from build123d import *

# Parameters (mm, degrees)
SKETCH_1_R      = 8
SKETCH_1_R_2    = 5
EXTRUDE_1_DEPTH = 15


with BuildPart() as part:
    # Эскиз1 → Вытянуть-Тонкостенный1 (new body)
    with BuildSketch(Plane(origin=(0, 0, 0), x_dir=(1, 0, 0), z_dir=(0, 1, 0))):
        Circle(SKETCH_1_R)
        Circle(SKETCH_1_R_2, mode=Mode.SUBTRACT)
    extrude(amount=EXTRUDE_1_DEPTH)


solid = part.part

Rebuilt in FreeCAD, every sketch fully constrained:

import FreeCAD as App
import Part
import Sketcher

V = App.Vector
Q = App.Units.Quantity

doc = App.newDocument("Part")
body = doc.addObject("PartDesign::Body", "Body")

# Sketch on XZ plane
sketch1 = body.newObject("Sketcher::SketchObject", "Sketch")
sketch1.AttachmentSupport = (doc.getObject("XZ_Plane"), [""])
sketch1.MapMode = "FlatFace"
sketch1.addGeometry([
    Part.Circle(V(0, 0, 0), V(0, 0, 1), 8),
    Part.Circle(V(0, 0, 0), V(0, 0, 1), 5),
], False)
sketch1.addConstraint([
    Sketcher.Constraint("Coincident", 0, 3, -1, 1),
    Sketcher.Constraint("Coincident", 1, 3, -1, 1),
    Sketcher.Constraint("Diameter", 0, Q("16 mm")),
    Sketcher.Constraint("Diameter", 1, Q("10 mm")),
])
pad1 = body.newObject("PartDesign::Pad", "Pad")
pad1.Profile = sketch1
pad1.Length = 15
pad1.Reversed = True

doc.recompute()
